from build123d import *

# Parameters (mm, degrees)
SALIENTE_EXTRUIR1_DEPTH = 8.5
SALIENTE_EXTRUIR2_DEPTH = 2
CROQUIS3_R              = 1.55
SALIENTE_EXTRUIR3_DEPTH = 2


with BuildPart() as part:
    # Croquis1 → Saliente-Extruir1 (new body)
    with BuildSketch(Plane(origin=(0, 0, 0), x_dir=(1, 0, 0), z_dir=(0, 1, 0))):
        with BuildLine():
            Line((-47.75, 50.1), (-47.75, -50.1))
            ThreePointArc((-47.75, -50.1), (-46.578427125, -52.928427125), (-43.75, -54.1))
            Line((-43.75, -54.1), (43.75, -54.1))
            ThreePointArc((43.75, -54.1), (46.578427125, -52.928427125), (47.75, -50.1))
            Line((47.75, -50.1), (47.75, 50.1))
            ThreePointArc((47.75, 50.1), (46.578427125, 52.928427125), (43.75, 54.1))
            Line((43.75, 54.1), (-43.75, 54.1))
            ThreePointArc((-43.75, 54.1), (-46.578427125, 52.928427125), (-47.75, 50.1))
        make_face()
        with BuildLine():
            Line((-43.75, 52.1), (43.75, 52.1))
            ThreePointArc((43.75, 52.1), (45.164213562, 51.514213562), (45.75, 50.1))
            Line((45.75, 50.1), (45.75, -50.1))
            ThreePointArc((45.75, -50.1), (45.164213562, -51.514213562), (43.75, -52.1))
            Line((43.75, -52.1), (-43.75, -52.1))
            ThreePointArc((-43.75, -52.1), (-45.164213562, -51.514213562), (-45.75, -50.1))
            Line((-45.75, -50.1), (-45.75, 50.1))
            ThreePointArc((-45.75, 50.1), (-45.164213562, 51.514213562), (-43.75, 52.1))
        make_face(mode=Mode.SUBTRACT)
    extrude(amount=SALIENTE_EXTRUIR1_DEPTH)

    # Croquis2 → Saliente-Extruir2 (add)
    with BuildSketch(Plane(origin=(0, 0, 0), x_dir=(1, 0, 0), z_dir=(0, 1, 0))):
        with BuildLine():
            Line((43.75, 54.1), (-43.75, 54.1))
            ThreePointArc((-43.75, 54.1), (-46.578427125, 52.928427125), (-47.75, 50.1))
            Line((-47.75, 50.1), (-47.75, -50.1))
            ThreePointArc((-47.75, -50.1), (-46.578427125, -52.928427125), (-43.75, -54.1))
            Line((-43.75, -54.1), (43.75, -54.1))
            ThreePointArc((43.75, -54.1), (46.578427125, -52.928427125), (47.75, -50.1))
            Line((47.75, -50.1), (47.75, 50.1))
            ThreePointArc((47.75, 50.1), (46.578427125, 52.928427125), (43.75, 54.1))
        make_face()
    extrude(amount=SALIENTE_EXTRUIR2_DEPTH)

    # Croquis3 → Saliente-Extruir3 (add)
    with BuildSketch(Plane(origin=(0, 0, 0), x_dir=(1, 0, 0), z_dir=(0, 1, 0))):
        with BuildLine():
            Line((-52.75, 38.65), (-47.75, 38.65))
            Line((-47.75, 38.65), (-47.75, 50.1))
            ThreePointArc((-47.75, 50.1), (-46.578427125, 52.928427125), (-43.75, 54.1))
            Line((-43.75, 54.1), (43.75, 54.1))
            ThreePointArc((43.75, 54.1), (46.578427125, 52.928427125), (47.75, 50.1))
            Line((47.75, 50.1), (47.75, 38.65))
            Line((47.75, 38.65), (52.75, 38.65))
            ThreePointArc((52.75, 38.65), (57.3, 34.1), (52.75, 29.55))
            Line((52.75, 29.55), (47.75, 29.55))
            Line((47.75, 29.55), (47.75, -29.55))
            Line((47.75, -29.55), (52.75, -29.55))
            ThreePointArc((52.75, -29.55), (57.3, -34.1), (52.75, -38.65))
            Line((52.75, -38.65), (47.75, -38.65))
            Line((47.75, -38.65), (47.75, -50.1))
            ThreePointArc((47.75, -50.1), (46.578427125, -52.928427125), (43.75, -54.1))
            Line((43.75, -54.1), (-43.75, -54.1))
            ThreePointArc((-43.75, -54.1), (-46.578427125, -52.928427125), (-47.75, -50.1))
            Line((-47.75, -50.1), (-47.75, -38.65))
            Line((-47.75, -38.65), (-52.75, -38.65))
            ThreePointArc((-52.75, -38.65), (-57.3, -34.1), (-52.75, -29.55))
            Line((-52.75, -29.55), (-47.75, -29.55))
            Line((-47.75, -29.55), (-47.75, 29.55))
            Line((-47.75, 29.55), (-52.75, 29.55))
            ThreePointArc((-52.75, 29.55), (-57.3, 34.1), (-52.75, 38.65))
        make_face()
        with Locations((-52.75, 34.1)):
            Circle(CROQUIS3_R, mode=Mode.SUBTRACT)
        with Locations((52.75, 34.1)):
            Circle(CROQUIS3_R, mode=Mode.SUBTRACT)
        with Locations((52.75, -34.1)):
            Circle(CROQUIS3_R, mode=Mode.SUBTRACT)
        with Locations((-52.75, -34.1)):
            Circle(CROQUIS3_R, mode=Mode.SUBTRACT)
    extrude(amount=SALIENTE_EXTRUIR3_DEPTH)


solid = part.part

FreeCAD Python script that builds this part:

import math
import FreeCAD as App
import Part
import Sketcher

doc = App.newDocument("Part")
body = doc.addObject("PartDesign::Body", "Body")

# Sketch on XZ plane
sketch1 = doc.addObject("Sketcher::SketchObject", "Sketch")
body.addObject(sketch1)
sketch1.AttachmentSupport = (doc.XZ_Plane, [""])
sketch1.MapMode = "FlatFace"
sketch1.addGeometry(Part.LineSegment(App.Vector(-47.8, -50.1, 0), App.Vector(-47.8, 50.1, 0)), False)
sketch1.addGeometry(Part.ArcOfCircle(Part.Circle(App.Vector(-43.8, 50.1, 0), App.Vector(0, 0, 1), 4), math.radians(90), math.radians(180)), False)
sketch1.addGeometry(Part.LineSegment(App.Vector(-43.8, 54.1, 0), App.Vector(43.8, 54.1, 0)), False)
sketch1.addGeometry(Part.ArcOfCircle(Part.Circle(App.Vector(43.8, 50.1, 0), App.Vector(0, 0, 1), 4), math.radians(0), math.radians(90)), False)
sketch1.addGeometry(Part.LineSegment(App.Vector(47.8, 50.1, 0), App.Vector(47.8, -50.1, 0)), False)
sketch1.addGeometry(Part.ArcOfCircle(Part.Circle(App.Vector(43.8, -50.1, 0), App.Vector(0, 0, 1), 4), math.radians(-90), math.radians(0)), False)
sketch1.addGeometry(Part.LineSegment(App.Vector(43.8, -54.1, 0), App.Vector(-43.8, -54.1, 0)), False)
sketch1.addGeometry(Part.ArcOfCircle(Part.Circle(App.Vector(-43.8, -50.1, 0), App.Vector(0, 0, 1), 4), math.radians(180), math.radians(270)), False)
sketch1.addGeometry(Part.ArcOfCircle(Part.Circle(App.Vector(-43.7, -50.1, 0), App.Vector(0, 0, 1), 2), math.radians(-180), math.radians(-90)), False)
sketch1.addGeometry(Part.LineSegment(App.Vector(-43.8, -52.1, 0), App.Vector(43.8, -52.1, 0)), False)
sketch1.addGeometry(Part.ArcOfCircle(Part.Circle(App.Vector(43.7, -50.1, 0), App.Vector(0, 0, 1), 2), math.radians(-90), math.radians(0)), False)
sketch1.addGeometry(Part.LineSegment(App.Vector(45.8, -50.1, 0), App.Vector(45.8, 50.1, 0)), False)
sketch1.addGeometry(Part.ArcOfCircle(Part.Circle(App.Vector(43.7, 50.1, 0), App.Vector(0, 0, 1), 2), math.radians(0), math.radians(90)), False)
sketch1.addGeometry(Part.LineSegment(App.Vector(43.8, 52.1, 0), App.Vector(-43.8, 52.1, 0)), False)
sketch1.addGeometry(Part.ArcOfCircle(Part.Circle(App.Vector(-43.7, 50.1, 0), App.Vector(0, 0, 1), 2), math.radians(90), math.radians(180)), False)
sketch1.addGeometry(Part.LineSegment(App.Vector(-45.8, 50.1, 0), App.Vector(-45.8, -50.1, 0)), False)
sketch1.addConstraint(Sketcher.Constraint("Tangent", 0, 2, 1, 2))
sketch1.addConstraint(Sketcher.Constraint("Tangent", 1, 1, 2, 1))
sketch1.addConstraint(Sketcher.Constraint("Tangent", 2, 2, 3, 2))
sketch1.addConstraint(Sketcher.Constraint("Tangent", 3, 1, 4, 1))
sketch1.addConstraint(Sketcher.Constraint("Tangent", 4, 2, 5, 2))
sketch1.addConstraint(Sketcher.Constraint("Tangent", 5, 1, 6, 1))
sketch1.addConstraint(Sketcher.Constraint("Tangent", 6, 2, 7, 2))
sketch1.addConstraint(Sketcher.Constraint("Tangent", 7, 1, 0, 1))
sketch1.addConstraint(Sketcher.Constraint("Tangent", 8, 2, 9, 1))
sketch1.addConstraint(Sketcher.Constraint("Tangent", 9, 2, 10, 1))
sketch1.addConstraint(Sketcher.Constraint("Tangent", 10, 2, 11, 1))
sketch1.addConstraint(Sketcher.Constraint("Tangent", 11, 2, 12, 1))
sketch1.addConstraint(Sketcher.Constraint("Tangent", 12, 2, 13, 1))
sketch1.addConstraint(Sketcher.Constraint("Tangent", 13, 2, 14, 1))
sketch1.addConstraint(Sketcher.Constraint("Tangent", 14, 2, 15, 1))
sketch1.addConstraint(Sketcher.Constraint("Tangent", 15, 2, 8, 1))
sketch1.addConstraint(Sketcher.Constraint("Vertical", 0))
sketch1.addConstraint(Sketcher.Constraint("Horizontal", 2))
sketch1.addConstraint(Sketcher.Constraint("Vertical", 4))
sketch1.addConstraint(Sketcher.Constraint("Horizontal", 6))
sketch1.addConstraint(Sketcher.Constraint("Horizontal", 9))
sketch1.addConstraint(Sketcher.Constraint("Vertical", 11))
sketch1.addConstraint(Sketcher.Constraint("Horizontal", 13))
sketch1.addConstraint(Sketcher.Constraint("Vertical", 15))
sketch1.addConstraint(Sketcher.Constraint("Coincident", 8, 3, 7, 3))
sketch1.addConstraint(Sketcher.Constraint("Coincident", 10, 3, 5, 3))
sketch1.addConstraint(Sketcher.Constraint("Coincident", 12, 3, 3, 3))
sketch1.addConstraint(Sketcher.Constraint("Equal", 1, 3))
sketch1.addConstraint(Sketcher.Constraint("Equal", 3, 5))
sketch1.addConstraint(Sketcher.Constraint("Equal", 5, 7))
sketch1.addConstraint(Sketcher.Constraint("Equal", 12, 14))
sketch1.addConstraint(Sketcher.Constraint("Symmetric", 1, 3, 5, 3, -1, 1))
sketch1.addConstraint(Sketcher.Constraint("Radius", 1, 4.0))
sketch1.addConstraint(Sketcher.Constraint("Radius", 8, 2.0))
sketch1.addConstraint(Sketcher.Constraint("DistanceX", 2, 1, 2, 2, 87.5))
sketch1.addConstraint(Sketcher.Constraint("DistanceY", 0, 1, 0, 2, 100.2))
pad1 = doc.addObject("PartDesign::Pad", "Pad")
body.addObject(pad1)
pad1.Profile = sketch1
pad1.Length = 8.5
pad1.Reversed = True

# Sketch on XZ plane
sketch2 = doc.addObject("Sketcher::SketchObject", "Sketch001")
body.addObject(sketch2)
sketch2.AttachmentSupport = (doc.XZ_Plane, [""])
sketch2.MapMode = "FlatFace"
sketch2.addGeometry(Part.LineSegment(App.Vector(43.8, -54.1, 0), App.Vector(-43.8, -54.1, 0)), False)
sketch2.addGeometry(Part.ArcOfCircle(Part.Circle(App.Vector(-43.8, -50.1, 0), App.Vector(0, 0, 1), 4), math.radians(180), math.radians(270)), False)
sketch2.addGeometry(Part.LineSegment(App.Vector(-47.8, -50.1, 0), App.Vector(-47.8, 50.1, 0)), False)
sketch2.addGeometry(Part.ArcOfCircle(Part.Circle(App.Vector(-43.8, 50.1, 0), App.Vector(0, 0, 1), 4), math.radians(90), math.radians(180)), False)
sketch2.addGeometry(Part.LineSegment(App.Vector(-43.8, 54.1, 0), App.Vector(43.8, 54.1, 0)), False)
sketch2.addGeometry(Part.ArcOfCircle(Part.Circle(App.Vector(43.8, 50.1, 0), App.Vector(0, 0, 1), 4), math.radians(0), math.radians(90)), False)
sketch2.addGeometry(Part.LineSegment(App.Vector(47.8, 50.1, 0), App.Vector(47.8, -50.1, 0)), False)
sketch2.addGeometry(Part.ArcOfCircle(Part.Circle(App.Vector(43.8, -50.1, 0), App.Vector(0, 0, 1), 4), math.radians(-90), math.radians(0)), False)
sketch2.addConstraint(Sketcher.Constraint("Tangent", 0, 2, 1, 2))
sketch2.addConstraint(Sketcher.Constraint("Tangent", 1, 1, 2, 1))
sketch2.addConstraint(Sketcher.Constraint("Tangent", 2, 2, 3, 2))
sketch2.addConstraint(Sketcher.Constraint("Tangent", 3, 1, 4, 1))
sketch2.addConstraint(Sketcher.Constraint("Tangent", 4, 2, 5, 2))
sketch2.addConstraint(Sketcher.Constraint("Tangent", 5, 1, 6, 1))
sketch2.addConstraint(Sketcher.Constraint("Tangent", 6, 2, 7, 2))
sketch2.addConstraint(Sketcher.Constraint("Tangent", 7, 1, 0, 1))
sketch2.addConstraint(Sketcher.Constraint("Horizontal", 0))
sketch2.addConstraint(Sketcher.Constraint("Vertical", 2))
sketch2.addConstraint(Sketcher.Constraint("Horizontal", 4))
sketch2.addConstraint(Sketcher.Constraint("Vertical", 6))
sketch2.addConstraint(Sketcher.Constraint("Equal", 1, 3))
sketch2.addConstraint(Sketcher.Constraint("Equal", 3, 5))
sketch2.addConstraint(Sketcher.Constraint("Equal", 5, 7))
sketch2.addConstraint(Sketcher.Constraint("Symmetric", 1, 3, 5, 3, -1, 1))
sketch2.addConstraint(Sketcher.Constraint("Radius", 1, 4.0))
sketch2.addConstraint(Sketcher.Constraint("DistanceX", 0, 2, 0, 1, 87.5))
sketch2.addConstraint(Sketcher.Constraint("DistanceY", 2, 1, 2, 2, 100.2))
pad2 = doc.addObject("PartDesign::Pad", "Pad001")
body.addObject(pad2)
pad2.Profile = sketch2
pad2.Length = 2
pad2.Reversed = True

# Sketch on XZ plane
sketch3 = doc.addObject("Sketcher::SketchObject", "Sketch002")
body.addObject(sketch3)
sketch3.AttachmentSupport = (doc.XZ_Plane, [""])
sketch3.MapMode = "FlatFace"
sketch3.addGeometry(Part.LineSegment(App.Vector(-47.8, -38.6, 0), App.Vector(-52.8, -38.6, 0)), False)
sketch3.addGeometry(Part.ArcOfCircle(Part.Circle(App.Vector(-52.8, -34.1, 0), App.Vector(0, 0, 1), 4.5), math.radians(90), math.radians(270)), False)
sketch3.addGeometry(Part.LineSegment(App.Vector(-52.8, -29.6, 0), App.Vector(-47.8, -29.6, 0)), False)
sketch3.addGeometry(Part.LineSegment(App.Vector(-47.8, -29.6, 0), App.Vector(-47.8, 29.6, 0)), False)
sketch3.addGeometry(Part.LineSegment(App.Vector(-47.8, 29.6, 0), App.Vector(-52.8, 29.6, 0)), False)
sketch3.addGeometry(Part.ArcOfCircle(Part.Circle(App.Vector(-52.8, 34.1, 0), App.Vector(0, 0, 1), 4.5), math.radians(90), math.radians(270)), False)
sketch3.addGeometry(Part.LineSegment(App.Vector(-52.8, 38.6, 0), App.Vector(-47.8, 38.6, 0)), False)
sketch3.addGeometry(Part.LineSegment(App.Vector(-47.8, 38.6, 0), App.Vector(-47.8, 50.1, 0)), False)
sketch3.addGeometry(Part.ArcOfCircle(Part.Circle(App.Vector(-43.8, 50.1, 0), App.Vector(0, 0, 1), 4), math.radians(90), math.radians(180)), False)
sketch3.addGeometry(Part.LineSegment(App.Vector(-43.8, 54.1, 0), App.Vector(43.8, 54.1, 0)), False)
sketch3.addGeometry(Part.ArcOfCircle(Part.Circle(App.Vector(43.8, 50.1, 0), App.Vector(0, 0, 1), 4), math.radians(0), math.radians(90)), False)
sketch3.addGeometry(Part.LineSegment(App.Vector(47.8, 50.1, 0), App.Vector(47.8, 38.6, 0)), False)
sketch3.addGeometry(Part.LineSegment(App.Vector(47.8, 38.6, 0), App.Vector(52.8, 38.6, 0)), False)
sketch3.addGeometry(Part.ArcOfCircle(Part.Circle(App.Vector(52.8, 34.1, 0), App.Vector(0, 0, 1), 4.5), math.radians(-90), math.radians(90)), False)
sketch3.addGeometry(Part.LineSegment(App.Vector(52.8, 29.6, 0), App.Vector(47.8, 29.6, 0)), False)
sketch3.addGeometry(Part.LineSegment(App.Vector(47.8, 29.6, 0), App.Vector(47.8, -29.6, 0)), False)
sketch3.addGeometry(Part.LineSegment(App.Vector(47.8, -29.6, 0), App.Vector(52.8, -29.6, 0)), False)
sketch3.addGeometry(Part.ArcOfCircle(Part.Circle(App.Vector(52.8, -34.1, 0), App.Vector(0, 0, 1), 4.5), math.radians(-90), math.radians(90)), False)
sketch3.addGeometry(Part.LineSegment(App.Vector(52.8, -38.6, 0), App.Vector(47.8, -38.6, 0)), False)
sketch3.addGeometry(Part.LineSegment(App.Vector(47.8, -38.6, 0), App.Vector(47.8, -50.1, 0)), False)
sketch3.addGeometry(Part.ArcOfCircle(Part.Circle(App.Vector(43.8, -50.1, 0), App.Vector(0, 0, 1), 4), math.radians(-90), math.radians(0)), False)
sketch3.addGeometry(Part.LineSegment(App.Vector(43.8, -54.1, 0), App.Vector(-43.8, -54.1, 0)), False)
sketch3.addGeometry(Part.ArcOfCircle(Part.Circle(App.Vector(-43.8, -50.1, 0), App.Vector(0, 0, 1), 4), math.radians(180), math.radians(270)), False)
sketch3.addGeometry(Part.LineSegment(App.Vector(-47.8, -50.1, 0), App.Vector(-47.8, -38.6, 0)), False)
sketch3.addGeometry(Part.Circle(App.Vector(52.8, 34.1, 0), App.Vector(0, 0, 1), 1.6), False)
sketch3.addGeometry(Part.Circle(App.Vector(-52.8, 34.1, 0), App.Vector(0, 0, 1), 1.6), False)
sketch3.addGeometry(Part.Circle(App.Vector(52.8, -34.1, 0), App.Vector(0, 0, 1), 1.6), False)
sketch3.addGeometry(Part.Circle(App.Vector(-52.8, -34.1, 0), App.Vector(0, 0, 1), 1.6), False)
sketch3.addConstraint(Sketcher.Constraint("Tangent", 0, 2, 1, 2))
sketch3.addConstraint(Sketcher.Constraint("Tangent", 1, 1, 2, 1))
sketch3.addConstraint(Sketcher.Constraint("Coincident", 2, 2, 3, 1))
sketch3.addConstraint(Sketcher.Constraint("Coincident", 3, 2, 4, 1))
sketch3.addConstraint(Sketcher.Constraint("Tangent", 4, 2, 5, 2))
sketch3.addConstraint(Sketcher.Constraint("Tangent", 5, 1, 6, 1))
sketch3.addConstraint(Sketcher.Constraint("Coincident", 6, 2, 7, 1))
sketch3.addConstraint(Sketcher.Constraint("Tangent", 7, 2, 8, 2))
sketch3.addConstraint(Sketcher.Constraint("Tangent", 8, 1, 9, 1))
sketch3.addConstraint(Sketcher.Constraint("Tangent", 9, 2, 10, 2))
sketch3.addConstraint(Sketcher.Constraint("Tangent", 10, 1, 11, 1))
sketch3.addConstraint(Sketcher.Constraint("Coincident", 11, 2, 12, 1))
sketch3.addConstraint(Sketcher.Constraint("Tangent", 12, 2, 13, 2))
sketch3.addConstraint(Sketcher.Constraint("Tangent", 13, 1, 14, 1))
sketch3.addConstraint(Sketcher.Constraint("Coincident", 14, 2, 15, 1))
sketch3.addConstraint(Sketcher.Constraint("Coincident", 15, 2, 16, 1))
sketch3.addConstraint(Sketcher.Constraint("Tangent", 16, 2, 17, 2))
sketch3.addConstraint(Sketcher.Constraint("Tangent", 17, 1, 18, 1))
sketch3.addConstraint(Sketcher.Constraint("Coincident", 18, 2, 19, 1))
sketch3.addConstraint(Sketcher.Constraint("Tangent", 19, 2, 20, 2))
sketch3.addConstraint(Sketcher.Constraint("Tangent", 20, 1, 21, 1))
sketch3.addConstraint(Sketcher.Constraint("Tangent", 21, 2, 22, 2))
sketch3.addConstraint(Sketcher.Constraint("Tangent", 22, 1, 23, 1))
sketch3.addConstraint(Sketcher.Constraint("Coincident", 23, 2, 0, 1))
sketch3.addConstraint(Sketcher.Constraint("Horizontal", 0))
sketch3.addConstraint(Sketcher.Constraint("Horizontal", 2))
sketch3.addConstraint(Sketcher.Constraint("Vertical", 3))
sketch3.addConstraint(Sketcher.Constraint("Horizontal", 4))
sketch3.addConstraint(Sketcher.Constraint("Horizontal", 6))
sketch3.addConstraint(Sketcher.Constraint("Vertical", 7))
sketch3.addConstraint(Sketcher.Constraint("Horizontal", 9))
sketch3.addConstraint(Sketcher.Constraint("Vertical", 11))
sketch3.addConstraint(Sketcher.Constraint("Horizontal", 12))
sketch3.addConstraint(Sketcher.Constraint("Horizontal", 14))
sketch3.addConstraint(Sketcher.Constraint("Vertical", 15))
sketch3.addConstraint(Sketcher.Constraint("Horizontal", 16))
sketch3.addConstraint(Sketcher.Constraint("Horizontal", 18))
sketch3.addConstraint(Sketcher.Constraint("Vertical", 19))
sketch3.addConstraint(Sketcher.Constraint("Horizontal", 21))
sketch3.addConstraint(Sketcher.Constraint("Vertical", 23))
sketch3.addConstraint(Sketcher.Constraint("Coincident", 24, 3, 13, 3))
sketch3.addConstraint(Sketcher.Constraint("Coincident", 25, 3, 5, 3))
sketch3.addConstraint(Sketcher.Constraint("Coincident", 26, 3, 17, 3))
sketch3.addConstraint(Sketcher.Constraint("Coincident", 27, 3, 1, 3))
sketch3.addConstraint(Sketcher.Constraint("Equal", 1, 5))
sketch3.addConstraint(Sketcher.Constraint("Equal", 8, 10))
sketch3.addConstraint(Sketcher.Constraint("Equal", 5, 13))
sketch3.addConstraint(Sketcher.Constraint("Equal", 13, 17))
sketch3.addConstraint(Sketcher.Constraint("Equal", 10, 20))
sketch3.addConstraint(Sketcher.Constraint("Equal", 20, 22))
sketch3.addConstraint(Sketcher.Constraint("Equal", 24, 25))
sketch3.addConstraint(Sketcher.Constraint("Equal", 25, 26))
sketch3.addConstraint(Sketcher.Constraint("Equal", 26, 27))
sketch3.addConstraint(Sketcher.Constraint("Symmetric", 1, 3, 13, 3, -1, 1))
sketch3.addConstraint(Sketcher.Constraint("Symmetric", 5, 3, 17, 3, -1, 1))
sketch3.addConstraint(Sketcher.Constraint("Symmetric", 8, 3, 20, 3, -1, 1))
sketch3.addConstraint(Sketcher.Constraint("Symmetric", 5, 3, 13, 3, -2))
sketch3.addConstraint(Sketcher.Constraint("Vertical", 10, 3, 20, 3))
sketch3.addConstraint(Sketcher.Constraint("Vertical", 8, 3, 22, 3))
sketch3.addConstraint(Sketcher.Constraint("Vertical", 3, 2, 6, 2))
sketch3.addConstraint(Sketcher.Constraint("Vertical", 11, 2, 14, 2))
sketch3.addConstraint(Sketcher.Constraint("Radius", 8, 4.0))
sketch3.addConstraint(Sketcher.Constraint("Diameter", 24, 3.1))
sketch3.addConstraint(Sketcher.Constraint("DistanceX", 0, 2, 0, 1, 5.0))
sketch3.addConstraint(Sketcher.Constraint("Radius", 1, 4.55))
sketch3.addConstraint(Sketcher.Constraint("DistanceX", 9, 1, 9, 2, 87.5))
sketch3.addConstraint(Sketcher.Constraint("DistanceY", 3, 1, 3, 2, 59.1))
sketch3.addConstraint(Sketcher.Constraint("DistanceY", 5, 3, 8, 3, 16.0))
pad3 = doc.addObject("PartDesign::Pad", "Pad002")
body.addObject(pad3)
pad3.Profile = sketch3
pad3.Length = 2
pad3.Reversed = True

doc.recompute()
